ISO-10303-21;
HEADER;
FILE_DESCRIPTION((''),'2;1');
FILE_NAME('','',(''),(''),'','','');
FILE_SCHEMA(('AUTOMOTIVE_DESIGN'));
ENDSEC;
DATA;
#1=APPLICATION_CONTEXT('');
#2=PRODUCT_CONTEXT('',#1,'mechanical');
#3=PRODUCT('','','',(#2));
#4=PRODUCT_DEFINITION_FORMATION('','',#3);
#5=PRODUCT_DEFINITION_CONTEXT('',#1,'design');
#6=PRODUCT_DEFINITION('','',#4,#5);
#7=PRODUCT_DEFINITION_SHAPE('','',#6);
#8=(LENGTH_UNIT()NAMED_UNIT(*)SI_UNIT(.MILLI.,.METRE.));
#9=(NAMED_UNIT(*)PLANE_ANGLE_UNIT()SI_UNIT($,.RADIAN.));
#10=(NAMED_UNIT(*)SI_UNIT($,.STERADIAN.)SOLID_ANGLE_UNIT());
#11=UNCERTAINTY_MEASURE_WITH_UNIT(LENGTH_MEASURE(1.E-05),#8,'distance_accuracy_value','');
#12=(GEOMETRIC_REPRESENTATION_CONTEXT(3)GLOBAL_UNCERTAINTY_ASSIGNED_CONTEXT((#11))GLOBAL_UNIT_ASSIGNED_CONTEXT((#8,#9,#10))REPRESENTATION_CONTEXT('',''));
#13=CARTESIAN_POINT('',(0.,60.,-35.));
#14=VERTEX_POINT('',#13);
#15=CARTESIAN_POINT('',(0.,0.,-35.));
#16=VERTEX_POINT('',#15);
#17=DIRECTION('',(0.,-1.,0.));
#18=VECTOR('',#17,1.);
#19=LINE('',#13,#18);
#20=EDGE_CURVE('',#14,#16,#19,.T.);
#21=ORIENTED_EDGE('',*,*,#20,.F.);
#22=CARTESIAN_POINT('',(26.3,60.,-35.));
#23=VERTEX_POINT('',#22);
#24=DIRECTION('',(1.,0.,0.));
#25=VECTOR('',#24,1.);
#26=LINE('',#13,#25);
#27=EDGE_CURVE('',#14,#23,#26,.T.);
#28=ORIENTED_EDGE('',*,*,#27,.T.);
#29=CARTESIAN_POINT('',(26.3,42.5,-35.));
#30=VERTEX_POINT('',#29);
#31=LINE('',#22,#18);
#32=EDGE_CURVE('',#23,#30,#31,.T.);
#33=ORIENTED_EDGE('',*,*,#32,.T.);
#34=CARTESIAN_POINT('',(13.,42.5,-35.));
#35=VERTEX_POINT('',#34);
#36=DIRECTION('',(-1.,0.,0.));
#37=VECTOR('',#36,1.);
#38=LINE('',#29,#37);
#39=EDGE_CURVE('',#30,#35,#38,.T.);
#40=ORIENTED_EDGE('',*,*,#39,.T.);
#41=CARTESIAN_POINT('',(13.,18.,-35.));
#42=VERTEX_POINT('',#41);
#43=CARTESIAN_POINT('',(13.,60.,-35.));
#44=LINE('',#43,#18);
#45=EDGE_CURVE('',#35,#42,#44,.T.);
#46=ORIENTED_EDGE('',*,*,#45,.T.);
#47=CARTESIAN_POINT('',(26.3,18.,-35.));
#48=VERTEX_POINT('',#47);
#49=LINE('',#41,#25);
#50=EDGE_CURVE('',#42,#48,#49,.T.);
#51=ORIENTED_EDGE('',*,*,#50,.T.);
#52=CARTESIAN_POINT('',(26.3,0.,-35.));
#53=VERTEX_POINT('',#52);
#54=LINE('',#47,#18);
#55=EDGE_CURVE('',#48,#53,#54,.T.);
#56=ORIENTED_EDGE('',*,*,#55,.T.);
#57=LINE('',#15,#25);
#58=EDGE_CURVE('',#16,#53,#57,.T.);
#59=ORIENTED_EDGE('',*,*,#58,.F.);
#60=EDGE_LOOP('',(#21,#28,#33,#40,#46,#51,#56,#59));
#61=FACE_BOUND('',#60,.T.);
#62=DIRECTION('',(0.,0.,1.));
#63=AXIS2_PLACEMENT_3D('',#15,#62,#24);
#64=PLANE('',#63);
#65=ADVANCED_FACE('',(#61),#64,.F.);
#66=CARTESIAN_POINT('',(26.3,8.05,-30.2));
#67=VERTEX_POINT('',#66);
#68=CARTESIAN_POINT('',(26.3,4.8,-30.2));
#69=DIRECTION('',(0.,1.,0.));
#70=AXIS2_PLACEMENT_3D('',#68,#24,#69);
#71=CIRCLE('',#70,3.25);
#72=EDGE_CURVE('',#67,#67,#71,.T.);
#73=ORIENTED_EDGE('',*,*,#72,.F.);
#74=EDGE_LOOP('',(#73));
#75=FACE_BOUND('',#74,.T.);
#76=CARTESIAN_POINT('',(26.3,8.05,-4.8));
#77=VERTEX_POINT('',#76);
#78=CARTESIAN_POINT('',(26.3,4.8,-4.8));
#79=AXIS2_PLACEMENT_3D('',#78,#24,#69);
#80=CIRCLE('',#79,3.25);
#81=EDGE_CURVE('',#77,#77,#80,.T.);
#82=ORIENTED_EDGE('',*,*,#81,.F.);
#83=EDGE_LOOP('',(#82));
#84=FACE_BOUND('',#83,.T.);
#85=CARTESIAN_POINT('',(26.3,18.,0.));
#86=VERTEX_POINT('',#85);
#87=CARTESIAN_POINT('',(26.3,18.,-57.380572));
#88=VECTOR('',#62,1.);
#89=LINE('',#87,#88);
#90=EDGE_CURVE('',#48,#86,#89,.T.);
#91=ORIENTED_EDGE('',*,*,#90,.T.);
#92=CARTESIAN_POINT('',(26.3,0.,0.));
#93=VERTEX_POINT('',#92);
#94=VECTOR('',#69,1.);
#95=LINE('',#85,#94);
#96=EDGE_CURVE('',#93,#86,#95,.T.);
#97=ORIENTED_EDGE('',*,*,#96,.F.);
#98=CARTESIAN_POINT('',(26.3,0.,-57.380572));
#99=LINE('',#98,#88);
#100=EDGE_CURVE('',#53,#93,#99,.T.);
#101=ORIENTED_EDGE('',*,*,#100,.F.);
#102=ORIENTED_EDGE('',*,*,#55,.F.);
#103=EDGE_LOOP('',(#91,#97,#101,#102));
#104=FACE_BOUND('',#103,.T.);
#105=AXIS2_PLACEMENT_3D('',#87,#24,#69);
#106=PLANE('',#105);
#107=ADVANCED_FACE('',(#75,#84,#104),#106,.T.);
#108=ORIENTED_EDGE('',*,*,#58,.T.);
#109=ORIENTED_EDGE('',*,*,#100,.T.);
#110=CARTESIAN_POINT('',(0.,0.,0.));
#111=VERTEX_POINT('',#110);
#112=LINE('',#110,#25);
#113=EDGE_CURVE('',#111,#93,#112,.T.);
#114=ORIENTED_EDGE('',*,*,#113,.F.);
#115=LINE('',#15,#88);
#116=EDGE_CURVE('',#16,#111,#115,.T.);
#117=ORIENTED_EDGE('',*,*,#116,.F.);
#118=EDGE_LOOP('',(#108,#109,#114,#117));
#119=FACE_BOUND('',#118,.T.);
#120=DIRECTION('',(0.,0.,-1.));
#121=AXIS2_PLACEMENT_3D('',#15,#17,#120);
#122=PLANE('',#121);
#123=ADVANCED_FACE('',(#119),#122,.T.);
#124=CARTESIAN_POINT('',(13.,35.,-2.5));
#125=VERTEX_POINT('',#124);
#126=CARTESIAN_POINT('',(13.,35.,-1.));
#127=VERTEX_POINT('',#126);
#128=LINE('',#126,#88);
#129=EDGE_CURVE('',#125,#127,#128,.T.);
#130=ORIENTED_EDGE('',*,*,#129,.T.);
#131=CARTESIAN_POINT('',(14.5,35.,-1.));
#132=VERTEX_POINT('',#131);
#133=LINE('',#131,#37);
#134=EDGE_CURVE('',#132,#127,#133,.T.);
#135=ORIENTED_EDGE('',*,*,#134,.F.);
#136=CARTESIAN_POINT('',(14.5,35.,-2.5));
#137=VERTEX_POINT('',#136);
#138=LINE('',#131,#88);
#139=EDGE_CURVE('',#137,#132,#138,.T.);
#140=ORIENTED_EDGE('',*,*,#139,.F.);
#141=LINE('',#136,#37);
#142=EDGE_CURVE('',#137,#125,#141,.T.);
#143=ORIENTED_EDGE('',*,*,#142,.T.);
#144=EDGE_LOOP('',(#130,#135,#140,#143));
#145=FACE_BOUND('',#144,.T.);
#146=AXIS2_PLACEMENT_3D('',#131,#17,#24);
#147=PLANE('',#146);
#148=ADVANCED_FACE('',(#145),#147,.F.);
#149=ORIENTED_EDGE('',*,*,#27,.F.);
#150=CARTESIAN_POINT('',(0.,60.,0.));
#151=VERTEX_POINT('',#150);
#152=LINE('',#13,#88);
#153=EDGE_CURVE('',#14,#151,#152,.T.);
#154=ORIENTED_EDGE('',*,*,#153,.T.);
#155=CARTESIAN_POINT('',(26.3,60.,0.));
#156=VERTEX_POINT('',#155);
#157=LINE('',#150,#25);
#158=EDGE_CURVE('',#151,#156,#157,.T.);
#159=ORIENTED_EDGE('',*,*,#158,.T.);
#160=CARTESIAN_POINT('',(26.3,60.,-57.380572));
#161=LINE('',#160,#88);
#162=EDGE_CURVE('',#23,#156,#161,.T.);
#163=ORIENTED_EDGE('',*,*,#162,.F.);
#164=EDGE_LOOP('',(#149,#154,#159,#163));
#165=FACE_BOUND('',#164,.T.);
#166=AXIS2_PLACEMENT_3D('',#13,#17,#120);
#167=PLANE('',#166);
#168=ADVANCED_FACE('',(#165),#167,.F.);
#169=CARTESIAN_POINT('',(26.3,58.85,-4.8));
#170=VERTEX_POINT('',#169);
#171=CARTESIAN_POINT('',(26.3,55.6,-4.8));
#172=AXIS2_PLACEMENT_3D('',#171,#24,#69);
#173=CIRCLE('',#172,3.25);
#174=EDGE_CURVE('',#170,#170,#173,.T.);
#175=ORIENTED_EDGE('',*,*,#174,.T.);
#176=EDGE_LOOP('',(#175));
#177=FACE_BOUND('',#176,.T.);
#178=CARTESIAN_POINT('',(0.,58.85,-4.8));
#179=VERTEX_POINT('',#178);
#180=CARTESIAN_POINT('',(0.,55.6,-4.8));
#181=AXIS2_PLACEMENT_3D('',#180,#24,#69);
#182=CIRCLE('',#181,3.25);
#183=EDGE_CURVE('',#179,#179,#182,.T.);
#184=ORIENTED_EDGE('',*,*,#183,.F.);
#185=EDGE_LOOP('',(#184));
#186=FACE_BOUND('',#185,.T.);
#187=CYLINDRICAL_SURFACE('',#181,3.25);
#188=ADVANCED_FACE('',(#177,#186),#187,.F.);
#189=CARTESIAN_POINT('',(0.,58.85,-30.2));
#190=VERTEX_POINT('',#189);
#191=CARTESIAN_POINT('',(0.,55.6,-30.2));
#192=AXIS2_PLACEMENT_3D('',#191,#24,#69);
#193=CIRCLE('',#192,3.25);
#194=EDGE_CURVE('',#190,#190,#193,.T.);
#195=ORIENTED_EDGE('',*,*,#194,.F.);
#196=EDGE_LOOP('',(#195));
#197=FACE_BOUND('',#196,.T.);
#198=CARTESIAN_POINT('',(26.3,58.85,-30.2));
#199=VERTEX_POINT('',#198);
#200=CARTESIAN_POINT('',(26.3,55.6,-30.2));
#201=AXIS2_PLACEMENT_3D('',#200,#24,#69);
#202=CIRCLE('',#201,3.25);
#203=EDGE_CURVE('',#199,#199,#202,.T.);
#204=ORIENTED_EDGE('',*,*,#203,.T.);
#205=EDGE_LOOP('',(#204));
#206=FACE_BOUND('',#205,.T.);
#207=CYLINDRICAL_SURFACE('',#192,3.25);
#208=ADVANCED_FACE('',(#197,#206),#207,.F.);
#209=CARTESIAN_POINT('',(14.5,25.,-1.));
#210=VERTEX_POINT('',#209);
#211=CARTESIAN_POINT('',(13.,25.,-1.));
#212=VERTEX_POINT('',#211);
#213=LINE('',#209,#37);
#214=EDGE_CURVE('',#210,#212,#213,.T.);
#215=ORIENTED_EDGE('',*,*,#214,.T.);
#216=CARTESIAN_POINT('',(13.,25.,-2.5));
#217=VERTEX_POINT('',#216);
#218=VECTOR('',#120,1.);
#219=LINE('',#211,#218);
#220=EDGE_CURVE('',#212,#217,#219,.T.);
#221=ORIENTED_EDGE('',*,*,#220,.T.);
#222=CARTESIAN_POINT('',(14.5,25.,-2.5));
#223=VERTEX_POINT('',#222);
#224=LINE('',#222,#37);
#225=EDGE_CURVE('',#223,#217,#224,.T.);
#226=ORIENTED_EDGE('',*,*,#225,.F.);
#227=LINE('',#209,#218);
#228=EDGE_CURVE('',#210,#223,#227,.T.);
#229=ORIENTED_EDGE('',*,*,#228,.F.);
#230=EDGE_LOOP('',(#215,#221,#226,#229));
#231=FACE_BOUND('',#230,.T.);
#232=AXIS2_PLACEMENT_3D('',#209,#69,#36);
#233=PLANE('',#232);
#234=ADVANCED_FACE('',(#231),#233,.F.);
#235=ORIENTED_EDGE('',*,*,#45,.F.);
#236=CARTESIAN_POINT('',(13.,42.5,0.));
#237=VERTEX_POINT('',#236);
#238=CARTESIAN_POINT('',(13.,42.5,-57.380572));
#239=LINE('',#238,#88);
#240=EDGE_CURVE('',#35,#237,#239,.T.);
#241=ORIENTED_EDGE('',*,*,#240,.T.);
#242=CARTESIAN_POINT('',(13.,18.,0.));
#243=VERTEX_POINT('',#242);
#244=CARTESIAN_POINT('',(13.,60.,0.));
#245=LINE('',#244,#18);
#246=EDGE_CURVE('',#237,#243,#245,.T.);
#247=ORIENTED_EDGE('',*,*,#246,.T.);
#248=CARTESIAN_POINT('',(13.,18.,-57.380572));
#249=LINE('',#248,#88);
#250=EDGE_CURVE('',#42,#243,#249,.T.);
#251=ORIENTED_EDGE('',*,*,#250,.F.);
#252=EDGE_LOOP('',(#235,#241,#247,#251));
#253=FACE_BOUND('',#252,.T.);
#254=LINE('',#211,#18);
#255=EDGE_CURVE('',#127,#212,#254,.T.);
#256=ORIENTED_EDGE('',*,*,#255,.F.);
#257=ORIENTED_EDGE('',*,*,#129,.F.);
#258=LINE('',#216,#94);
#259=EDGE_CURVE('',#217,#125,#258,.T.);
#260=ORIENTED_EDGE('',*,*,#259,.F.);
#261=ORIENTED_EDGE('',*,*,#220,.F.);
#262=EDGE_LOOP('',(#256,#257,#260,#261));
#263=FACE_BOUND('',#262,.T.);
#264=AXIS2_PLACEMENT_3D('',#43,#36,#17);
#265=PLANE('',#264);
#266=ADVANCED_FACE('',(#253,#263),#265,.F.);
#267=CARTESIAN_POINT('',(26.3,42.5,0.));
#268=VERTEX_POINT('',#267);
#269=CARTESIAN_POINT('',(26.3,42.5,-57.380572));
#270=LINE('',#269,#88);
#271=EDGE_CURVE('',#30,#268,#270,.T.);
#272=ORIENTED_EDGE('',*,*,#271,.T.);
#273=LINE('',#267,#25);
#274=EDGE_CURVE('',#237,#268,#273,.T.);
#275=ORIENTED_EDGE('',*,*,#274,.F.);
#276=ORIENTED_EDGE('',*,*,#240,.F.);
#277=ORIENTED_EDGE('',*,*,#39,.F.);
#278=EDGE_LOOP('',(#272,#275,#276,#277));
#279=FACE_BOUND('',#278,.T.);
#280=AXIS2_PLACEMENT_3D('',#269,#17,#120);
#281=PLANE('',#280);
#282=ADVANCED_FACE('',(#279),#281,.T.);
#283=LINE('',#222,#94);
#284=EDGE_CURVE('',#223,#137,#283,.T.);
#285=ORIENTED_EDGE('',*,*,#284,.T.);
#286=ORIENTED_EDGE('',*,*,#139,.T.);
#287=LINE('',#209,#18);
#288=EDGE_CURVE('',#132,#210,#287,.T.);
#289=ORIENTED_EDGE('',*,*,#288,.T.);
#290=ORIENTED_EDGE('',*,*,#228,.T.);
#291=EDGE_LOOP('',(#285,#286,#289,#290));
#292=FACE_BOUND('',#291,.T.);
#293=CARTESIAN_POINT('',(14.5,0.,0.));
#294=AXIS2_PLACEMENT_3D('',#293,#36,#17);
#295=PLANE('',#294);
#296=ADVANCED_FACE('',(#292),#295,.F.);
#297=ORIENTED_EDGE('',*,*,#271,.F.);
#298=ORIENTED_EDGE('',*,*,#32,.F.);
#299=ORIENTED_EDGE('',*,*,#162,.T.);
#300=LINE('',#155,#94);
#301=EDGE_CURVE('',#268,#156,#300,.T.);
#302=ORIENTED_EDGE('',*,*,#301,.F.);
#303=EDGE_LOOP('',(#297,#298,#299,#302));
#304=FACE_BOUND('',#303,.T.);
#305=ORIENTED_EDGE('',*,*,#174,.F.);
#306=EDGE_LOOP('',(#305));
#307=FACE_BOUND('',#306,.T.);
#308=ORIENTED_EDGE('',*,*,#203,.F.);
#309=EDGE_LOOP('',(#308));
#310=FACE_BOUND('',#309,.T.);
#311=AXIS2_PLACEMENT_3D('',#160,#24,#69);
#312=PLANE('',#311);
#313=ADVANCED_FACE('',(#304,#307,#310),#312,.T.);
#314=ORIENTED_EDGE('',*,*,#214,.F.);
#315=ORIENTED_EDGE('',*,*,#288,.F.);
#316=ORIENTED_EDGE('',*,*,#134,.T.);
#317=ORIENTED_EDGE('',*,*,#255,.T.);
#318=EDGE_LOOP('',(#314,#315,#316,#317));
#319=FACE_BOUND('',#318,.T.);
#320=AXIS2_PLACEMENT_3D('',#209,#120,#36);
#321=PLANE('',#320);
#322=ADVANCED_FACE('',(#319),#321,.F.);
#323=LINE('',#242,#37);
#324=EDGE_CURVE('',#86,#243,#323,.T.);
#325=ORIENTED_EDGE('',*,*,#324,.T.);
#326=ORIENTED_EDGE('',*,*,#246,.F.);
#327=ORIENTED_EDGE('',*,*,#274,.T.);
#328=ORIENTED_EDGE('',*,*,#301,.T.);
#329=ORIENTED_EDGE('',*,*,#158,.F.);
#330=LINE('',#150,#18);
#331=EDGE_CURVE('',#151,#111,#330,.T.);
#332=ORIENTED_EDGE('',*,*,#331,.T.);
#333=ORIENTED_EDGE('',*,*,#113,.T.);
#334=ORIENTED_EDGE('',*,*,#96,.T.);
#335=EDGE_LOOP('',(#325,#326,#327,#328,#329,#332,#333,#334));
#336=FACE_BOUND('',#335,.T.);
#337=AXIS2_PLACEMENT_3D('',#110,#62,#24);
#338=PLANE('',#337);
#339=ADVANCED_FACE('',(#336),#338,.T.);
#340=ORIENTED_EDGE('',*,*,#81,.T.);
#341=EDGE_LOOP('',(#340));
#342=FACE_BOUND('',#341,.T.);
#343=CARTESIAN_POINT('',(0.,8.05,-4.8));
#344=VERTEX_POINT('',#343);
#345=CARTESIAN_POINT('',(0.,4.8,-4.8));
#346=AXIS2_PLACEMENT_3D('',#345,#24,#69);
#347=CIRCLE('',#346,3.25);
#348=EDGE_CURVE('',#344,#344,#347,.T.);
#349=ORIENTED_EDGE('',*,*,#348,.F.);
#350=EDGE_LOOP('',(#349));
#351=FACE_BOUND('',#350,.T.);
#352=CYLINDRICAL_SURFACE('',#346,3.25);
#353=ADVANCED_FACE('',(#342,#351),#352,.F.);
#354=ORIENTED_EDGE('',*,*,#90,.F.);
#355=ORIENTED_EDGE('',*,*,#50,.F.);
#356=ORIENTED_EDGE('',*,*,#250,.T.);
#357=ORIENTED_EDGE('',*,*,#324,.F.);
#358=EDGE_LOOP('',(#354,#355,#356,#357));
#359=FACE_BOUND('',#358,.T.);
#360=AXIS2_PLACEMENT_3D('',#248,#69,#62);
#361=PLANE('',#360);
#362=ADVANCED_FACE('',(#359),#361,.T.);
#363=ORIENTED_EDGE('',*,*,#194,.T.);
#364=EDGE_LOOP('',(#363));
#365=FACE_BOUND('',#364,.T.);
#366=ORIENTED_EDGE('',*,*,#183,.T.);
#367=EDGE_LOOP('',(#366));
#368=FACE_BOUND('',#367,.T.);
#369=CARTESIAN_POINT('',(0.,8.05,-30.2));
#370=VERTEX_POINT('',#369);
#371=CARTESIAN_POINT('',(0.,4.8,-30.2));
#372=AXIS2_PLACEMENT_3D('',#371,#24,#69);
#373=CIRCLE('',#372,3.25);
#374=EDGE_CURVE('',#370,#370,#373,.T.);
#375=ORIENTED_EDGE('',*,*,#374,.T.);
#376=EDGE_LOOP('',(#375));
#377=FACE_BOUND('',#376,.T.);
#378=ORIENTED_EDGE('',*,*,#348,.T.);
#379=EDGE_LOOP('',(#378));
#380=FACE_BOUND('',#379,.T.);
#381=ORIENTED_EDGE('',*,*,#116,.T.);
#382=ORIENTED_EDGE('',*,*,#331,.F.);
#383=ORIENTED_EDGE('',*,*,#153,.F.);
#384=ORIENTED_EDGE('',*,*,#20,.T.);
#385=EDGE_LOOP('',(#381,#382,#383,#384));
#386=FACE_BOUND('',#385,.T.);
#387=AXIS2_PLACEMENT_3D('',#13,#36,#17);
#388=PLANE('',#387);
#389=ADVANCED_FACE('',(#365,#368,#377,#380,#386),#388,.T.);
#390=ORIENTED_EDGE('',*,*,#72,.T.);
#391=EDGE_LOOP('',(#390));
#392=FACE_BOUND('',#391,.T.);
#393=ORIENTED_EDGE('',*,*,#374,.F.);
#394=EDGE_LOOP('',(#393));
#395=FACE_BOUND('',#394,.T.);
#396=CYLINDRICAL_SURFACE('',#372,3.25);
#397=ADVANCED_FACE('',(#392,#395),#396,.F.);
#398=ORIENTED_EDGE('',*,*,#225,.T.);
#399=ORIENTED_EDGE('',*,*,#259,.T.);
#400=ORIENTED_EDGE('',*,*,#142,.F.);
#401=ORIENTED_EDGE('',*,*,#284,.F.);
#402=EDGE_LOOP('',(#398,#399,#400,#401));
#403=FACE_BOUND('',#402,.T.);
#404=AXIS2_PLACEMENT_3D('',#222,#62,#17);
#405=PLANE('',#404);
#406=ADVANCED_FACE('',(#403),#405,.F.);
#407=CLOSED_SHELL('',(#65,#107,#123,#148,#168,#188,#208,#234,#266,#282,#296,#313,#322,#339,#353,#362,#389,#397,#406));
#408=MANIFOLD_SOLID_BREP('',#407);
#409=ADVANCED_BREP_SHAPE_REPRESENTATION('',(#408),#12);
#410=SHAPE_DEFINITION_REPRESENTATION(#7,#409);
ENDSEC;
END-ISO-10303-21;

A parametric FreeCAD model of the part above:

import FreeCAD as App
import Part
import Sketcher

doc = App.newDocument("Part")
body = doc.addObject("PartDesign::Body", "Body")

sketch1 = body.newObject("Sketcher::SketchObject", "Sketch")
sketch1.AttachmentSupport = (doc.getObject("XY_Plane"), [""])
sketch1.MapMode = "FlatFace"
sketch1.addGeometry(Part.LineSegment(App.Vector(0, 60, 0), App.Vector(0, 0, 0)), False)
sketch1.addGeometry(Part.LineSegment(App.Vector(0, 0, 0), App.Vector(13, 0, 0)), False)
sketch1.addGeometry(Part.LineSegment(App.Vector(13, 0, 0), App.Vector(13, 60, 0)), False)
sketch1.addGeometry(Part.LineSegment(App.Vector(13, 60, 0), App.Vector(0, 60, 0)), False)
sketch1.addConstraint(Sketcher.Constraint("Coincident", 0, 2, 1, 1))
sketch1.addConstraint(Sketcher.Constraint("Coincident", 1, 2, 2, 1))
sketch1.addConstraint(Sketcher.Constraint("Coincident", 2, 2, 3, 1))
sketch1.addConstraint(Sketcher.Constraint("Coincident", 3, 2, 0, 1))
sketch1.addConstraint(Sketcher.Constraint("Vertical", 0))
sketch1.addConstraint(Sketcher.Constraint("Horizontal", 1))
sketch1.addConstraint(Sketcher.Constraint("Vertical", 2))
sketch1.addConstraint(Sketcher.Constraint("Horizontal", 3))
sketch1.addConstraint(Sketcher.Constraint("Coincident", 0, 2, -1, 1))
sketch1.addConstraint(Sketcher.Constraint("DistanceX", 1, 1, 1, 2, 13.0))
sketch1.addConstraint(Sketcher.Constraint("DistanceY", 0, 2, 0, 1, 60.0))
pad1 = body.newObject("PartDesign::Pad", "Pad")
pad1.Profile = sketch1
pad1.Length = 35
pad1.Reversed = True

sketch2 = body.newObject("Sketcher::SketchObject", "Sketch001")
sketch2.AttachmentSupport = (doc.getObject("YZ_Plane"), [""])
sketch2.MapMode = "FlatFace"
sketch2.AttachmentOffset = App.Placement(App.Vector(0, 0, 13), App.Rotation())
sketch2.addGeometry(Part.LineSegment(App.Vector(35, -1, 0), App.Vector(25, -1, 0)), False)
sketch2.addGeometry(Part.LineSegment(App.Vector(25, -1, 0), App.Vector(25, -2.5, 0)), False)
sketch2.addGeometry(Part.LineSegment(App.Vector(25, -2.5, 0), App.Vector(35, -2.5, 0)), False)
sketch2.addGeometry(Part.LineSegment(App.Vector(35, -2.5, 0), App.Vector(35, -1, 0)), False)
sketch2.addConstraint(Sketcher.Constraint("Coincident", 0, 2, 1, 1))
sketch2.addConstraint(Sketcher.Constraint("Coincident", 1, 2, 2, 1))
sketch2.addConstraint(Sketcher.Constraint("Coincident", 2, 2, 3, 1))
sketch2.addConstraint(Sketcher.Constraint("Coincident", 3, 2, 0, 1))
sketch2.addConstraint(Sketcher.Constraint("Horizontal", 0))
sketch2.addConstraint(Sketcher.Constraint("Vertical", 1))
sketch2.addConstraint(Sketcher.Constraint("Horizontal", 2))
sketch2.addConstraint(Sketcher.Constraint("Vertical", 3))
sketch2.addConstraint(Sketcher.Constraint("DistanceX", 0, 2, 0, 1, 10.0))
sketch2.addConstraint(Sketcher.Constraint("DistanceY", 1, 2, 1, 1, 1.5))
sketch2.addConstraint(Sketcher.Constraint("DistanceX", -1, 1, 0, 2, 25.0))
sketch2.addConstraint(Sketcher.Constraint("DistanceY", 0, 2, -1, 1, 1.0))
pad2 = body.newObject("PartDesign::Pad", "Pad001")
pad2.Profile = sketch2
pad2.Length = 1.5

sketch3 = body.newObject("Sketcher::SketchObject", "Sketch002")
sketch3.AttachmentSupport = (doc.getObject("XY_Plane"), [""])
sketch3.MapMode = "FlatFace"
sketch3.addGeometry(Part.LineSegment(App.Vector(13, 60, 0), App.Vector(13, 42, 0)), False)
sketch3.addGeometry(Part.LineSegment(App.Vector(13, 42, 0), App.Vector(26, 42, 0)), False)
sketch3.addGeometry(Part.LineSegment(App.Vector(26, 42, 0), App.Vector(26, 60, 0)), False)
sketch3.addGeometry(Part.LineSegment(App.Vector(26, 60, 0), App.Vector(13, 60, 0)), False)
sketch3.addGeometry(Part.LineSegment(App.Vector(13, 18, 0), App.Vector(13, 0, 0)), False)
sketch3.addGeometry(Part.LineSegment(App.Vector(13, 0, 0), App.Vector(26, 0, 0)), False)
sketch3.addGeometry(Part.LineSegment(App.Vector(26, 0, 0), App.Vector(26, 18, 0)), False)
sketch3.addGeometry(Part.LineSegment(App.Vector(26, 18, 0), App.Vector(13, 18, 0)), False)
sketch3.addConstraint(Sketcher.Constraint("Coincident", 0, 2, 1, 1))
sketch3.addConstraint(Sketcher.Constraint("Coincident", 1, 2, 2, 1))
sketch3.addConstraint(Sketcher.Constraint("Coincident", 2, 2, 3, 1))
sketch3.addConstraint(Sketcher.Constraint("Coincident", 3, 2, 0, 1))
sketch3.addConstraint(Sketcher.Constraint("Coincident", 4, 2, 5, 1))
sketch3.addConstraint(Sketcher.Constraint("Coincident", 5, 2, 6, 1))
sketch3.addConstraint(Sketcher.Constraint("Coincident", 6, 2, 7, 1))
sketch3.addConstraint(Sketcher.Constraint("Coincident", 7, 2, 4, 1))
sketch3.addConstraint(Sketcher.Constraint("Vertical", 0))
sketch3.addConstraint(Sketcher.Constraint("Horizontal", 1))
sketch3.addConstraint(Sketcher.Constraint("Vertical", 2))
sketch3.addConstraint(Sketcher.Constraint("Horizontal", 3))
sketch3.addConstraint(Sketcher.Constraint("Vertical", 4))
sketch3.addConstraint(Sketcher.Constraint("Horizontal", 5))
sketch3.addConstraint(Sketcher.Constraint("Vertical", 6))
sketch3.addConstraint(Sketcher.Constraint("Horizontal", 7))
sketch3.addConstraint(Sketcher.Constraint("PointOnObject", 4, 2, -1))
sketch3.addConstraint(Sketcher.Constraint("Vertical", 3, 2, 4, 2))
sketch3.addConstraint(Sketcher.Constraint("Vertical", 2, 2, 5, 2))
sketch3.addConstraint(Sketcher.Constraint("DistanceY", 4, 2, 4, 1, 18.0))
sketch3.addConstraint(Sketcher.Constraint("DistanceX", 1, 1, 1, 2, 13.3))
sketch3.addConstraint(Sketcher.Constraint("DistanceY", 0, 2, 0, 1, 17.5))
sketch3.addConstraint(Sketcher.Constraint("DistanceX", -1, 1, 0, 2, 13.0))
sketch3.addConstraint(Sketcher.Constraint("DistanceY", -1, 1, 2, 2, 60.0))
pad3 = body.newObject("PartDesign::Pad", "Pad002")
pad3.Profile = sketch3
pad3.Length = 35
pad3.Reversed = True

sketch4 = body.newObject("Sketcher::SketchObject", "Sketch003")
sketch4.AttachmentSupport = (doc.getObject("YZ_Plane"), [""])
sketch4.MapMode = "FlatFace"
sketch4.AttachmentOffset = App.Placement(App.Vector(0, 0, 26.3), App.Rotation())
sketch4.addGeometry(Part.Circle(App.Vector(4.8, -4.8, 0), App.Vector(0, 0, 1), 3.2), False)
sketch4.addGeometry(Part.Circle(App.Vector(4.8, -30.2, 0), App.Vector(0, 0, 1), 3.2), False)
sketch4.addGeometry(Part.Circle(App.Vector(55.6, -30.2, 0), App.Vector(0, 0, 1), 3.2), False)
sketch4.addGeometry(Part.Circle(App.Vector(55.6, -4.8, 0), App.Vector(0, 0, 1), 3.2), False)
sketch4.addConstraint(Sketcher.Constraint("Equal", 0, 1))
sketch4.addConstraint(Sketcher.Constraint("Equal", 1, 2))
sketch4.addConstraint(Sketcher.Constraint("Equal", 2, 3))
sketch4.addConstraint(Sketcher.Constraint("Horizontal", 1, 3, 2, 3))
sketch4.addConstraint(Sketcher.Constraint("Horizontal", 0, 3, 3, 3))
sketch4.addConstraint(Sketcher.Constraint("Vertical", 0, 3, 1, 3))
sketch4.addConstraint(Sketcher.Constraint("Vertical", 2, 3, 3, 3))
sketch4.addConstraint(Sketcher.Constraint("Diameter", 0, 6.5))
sketch4.addConstraint(Sketcher.Constraint("DistanceX", -1, 1, 0, 3, 4.8))
sketch4.addConstraint(Sketcher.Constraint("DistanceY", 0, 3, -1, 1, 4.8))
sketch4.addConstraint(Sketcher.Constraint("DistanceY", 1, 3, -1, 1, 30.2))
sketch4.addConstraint(Sketcher.Constraint("DistanceX", -1, 1, 2, 3, 55.6))
pocket1 = body.newObject("PartDesign::Pocket", "Pocket")
pocket1.Profile = sketch4
pocket1.Type = "ThroughAll"

doc.recompute()
